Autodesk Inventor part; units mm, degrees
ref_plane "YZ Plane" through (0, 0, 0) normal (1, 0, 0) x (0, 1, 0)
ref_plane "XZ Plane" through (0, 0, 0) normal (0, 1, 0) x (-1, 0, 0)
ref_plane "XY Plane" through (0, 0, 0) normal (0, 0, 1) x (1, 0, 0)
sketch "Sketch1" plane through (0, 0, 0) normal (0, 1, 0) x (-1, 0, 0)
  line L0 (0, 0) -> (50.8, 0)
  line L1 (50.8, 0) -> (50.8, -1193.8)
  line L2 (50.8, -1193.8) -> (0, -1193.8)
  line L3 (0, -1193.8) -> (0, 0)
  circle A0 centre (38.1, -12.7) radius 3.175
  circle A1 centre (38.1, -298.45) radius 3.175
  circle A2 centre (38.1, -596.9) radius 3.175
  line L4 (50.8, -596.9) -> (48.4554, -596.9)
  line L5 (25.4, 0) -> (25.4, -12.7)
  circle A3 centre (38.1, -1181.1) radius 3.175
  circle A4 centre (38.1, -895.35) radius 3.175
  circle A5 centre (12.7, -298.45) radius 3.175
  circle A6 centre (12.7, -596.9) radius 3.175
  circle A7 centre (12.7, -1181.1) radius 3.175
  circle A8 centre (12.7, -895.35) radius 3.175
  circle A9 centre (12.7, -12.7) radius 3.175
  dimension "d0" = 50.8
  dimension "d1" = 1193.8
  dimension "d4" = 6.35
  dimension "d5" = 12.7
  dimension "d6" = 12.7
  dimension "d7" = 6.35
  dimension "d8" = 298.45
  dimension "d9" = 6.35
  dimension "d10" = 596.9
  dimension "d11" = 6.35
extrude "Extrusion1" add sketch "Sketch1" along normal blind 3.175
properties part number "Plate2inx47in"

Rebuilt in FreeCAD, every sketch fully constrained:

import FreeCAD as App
import Part
import Sketcher
from FreeCAD import Vector
Q = App.Units.Quantity

doc = App.newDocument("Part")
body = doc.addObject("PartDesign::Body", "Body")

sketch1 = body.newObject("Sketcher::SketchObject", "Sketch")
sketch1.AttachmentSupport = (doc.getObject("XZ_Plane"), [""])
sketch1.MapMode = "FlatFace"
sketch1.addGeometry(Part.LineSegment(Vector(-50.8, 0, 0), Vector(0, 0, 0)), False)
sketch1.addGeometry(Part.LineSegment(Vector(0, 0, 0), Vector(0, -1193.8, 0)), False)
sketch1.addGeometry(Part.LineSegment(Vector(0, -1193.8, 0), Vector(-50.8, -1193.8, 0)), False)
sketch1.addGeometry(Part.LineSegment(Vector(-50.8, -1193.8, 0), Vector(-50.8, 0, 0)), False)
sketch1.addGeometry(Part.Circle(Vector(-12.7, -1181.1, 0), Vector(0, 0, 1), 3.2), False)
sketch1.addGeometry(Part.Circle(Vector(-12.7, -895.4, 0), Vector(0, 0, 1), 3.2), False)
sketch1.addGeometry(Part.Circle(Vector(-38.1, -1181.1, 0), Vector(0, 0, 1), 3.2), False)
sketch1.addGeometry(Part.Circle(Vector(-38.1, -895.4, 0), Vector(0, 0, 1), 3.2), False)
sketch1.addGeometry(Part.Circle(Vector(-12.7, -596.9, 0), Vector(0, 0, 1), 3.2), False)
sketch1.addGeometry(Part.Circle(Vector(-12.7, -298.4, 0), Vector(0, 0, 1), 3.2), False)
sketch1.addGeometry(Part.Circle(Vector(-12.7, -12.7, 0), Vector(0, 0, 1), 3.2), False)
sketch1.addGeometry(Part.Circle(Vector(-38.1, -596.9, 0), Vector(0, 0, 1), 3.2), False)
sketch1.addGeometry(Part.Circle(Vector(-38.1, -298.4, 0), Vector(0, 0, 1), 3.2), False)
sketch1.addGeometry(Part.Circle(Vector(-38.1, -12.7, 0), Vector(0, 0, 1), 3.2), False)
sketch1.addConstraint(Sketcher.Constraint("Coincident", 0, 2, 1, 1))
sketch1.addConstraint(Sketcher.Constraint("Coincident", 1, 2, 2, 1))
sketch1.addConstraint(Sketcher.Constraint("Coincident", 2, 2, 3, 1))
sketch1.addConstraint(Sketcher.Constraint("Coincident", 3, 2, 0, 1))
sketch1.addConstraint(Sketcher.Constraint("Horizontal", 0))
sketch1.addConstraint(Sketcher.Constraint("Vertical", 1))
sketch1.addConstraint(Sketcher.Constraint("Horizontal", 2))
sketch1.addConstraint(Sketcher.Constraint("Vertical", 3))
sketch1.addConstraint(Sketcher.Constraint("Coincident", 0, 2, -1, 1))
sketch1.addConstraint(Sketcher.Constraint("Equal", 4, 5))
sketch1.addConstraint(Sketcher.Constraint("Equal", 5, 6))
sketch1.addConstraint(Sketcher.Constraint("Equal", 6, 7))
sketch1.addConstraint(Sketcher.Constraint("Equal", 7, 8))
sketch1.addConstraint(Sketcher.Constraint("Equal", 8, 9))
sketch1.addConstraint(Sketcher.Constraint("Equal", 9, 10))
sketch1.addConstraint(Sketcher.Constraint("Equal", 10, 11))
sketch1.addConstraint(Sketcher.Constraint("Equal", 11, 12))
sketch1.addConstraint(Sketcher.Constraint("Equal", 12, 13))
sketch1.addConstraint(Sketcher.Constraint("Horizontal", 4, 3, 6, 3))
sketch1.addConstraint(Sketcher.Constraint("Horizontal", 5, 3, 7, 3))
sketch1.addConstraint(Sketcher.Constraint("Horizontal", 8, 3, 11, 3))
sketch1.addConstraint(Sketcher.Constraint("Horizontal", 9, 3, 12, 3))
sketch1.addConstraint(Sketcher.Constraint("Horizontal", 10, 3, 13, 3))
sketch1.addConstraint(Sketcher.Constraint("Vertical", 4, 3, 5, 3))
sketch1.addConstraint(Sketcher.Constraint("Vertical", 6, 3, 7, 3))
sketch1.addConstraint(Sketcher.Constraint("Vertical", 5, 3, 8, 3))
sketch1.addConstraint(Sketcher.Constraint("Vertical", 8, 3, 9, 3))
sketch1.addConstraint(Sketcher.Constraint("Vertical", 9, 3, 10, 3))
sketch1.addConstraint(Sketcher.Constraint("Vertical", 7, 3, 11, 3))
sketch1.addConstraint(Sketcher.Constraint("Vertical", 11, 3, 12, 3))
sketch1.addConstraint(Sketcher.Constraint("Vertical", 12, 3, 13, 3))
sketch1.addConstraint(Sketcher.Constraint("Diameter", 4, Q("0.25 in")))
sketch1.addConstraint(Sketcher.Constraint("DistanceX", 0, 1, 0, 2, Q("2 in")))
sketch1.addConstraint(Sketcher.Constraint("DistanceY", 1, 2, 1, 1, Q("47 in")))
sketch1.addConstraint(Sketcher.Constraint("DistanceX", 4, 3, -1, 1, Q("0.5 in")))
sketch1.addConstraint(Sketcher.Constraint("DistanceY", 8, 3, -1, 1, Q("23.5 in")))
sketch1.addConstraint(Sketcher.Constraint("DistanceY", 10, 3, -1, 1, Q("0.5 in")))
sketch1.addConstraint(Sketcher.Constraint("DistanceY", 5, 3, 9, 3, Q("23.5 in")))
sketch1.addConstraint(Sketcher.Constraint("DistanceY", 1, 2, 4, 3, Q("0.5 in")))
sketch1.addConstraint(Sketcher.Constraint("DistanceX", 2, 2, 6, 3, Q("0.5 in")))
sketch1.addConstraint(Sketcher.Constraint("DistanceY", 9, 3, -1, 1, Q("11.75 in")))
pad1 = body.newObject("PartDesign::Pad", "Pad")
pad1.Profile = sketch1
pad1.Length = Q("0.125 in")
pad1.Reversed = True

doc.recompute()
